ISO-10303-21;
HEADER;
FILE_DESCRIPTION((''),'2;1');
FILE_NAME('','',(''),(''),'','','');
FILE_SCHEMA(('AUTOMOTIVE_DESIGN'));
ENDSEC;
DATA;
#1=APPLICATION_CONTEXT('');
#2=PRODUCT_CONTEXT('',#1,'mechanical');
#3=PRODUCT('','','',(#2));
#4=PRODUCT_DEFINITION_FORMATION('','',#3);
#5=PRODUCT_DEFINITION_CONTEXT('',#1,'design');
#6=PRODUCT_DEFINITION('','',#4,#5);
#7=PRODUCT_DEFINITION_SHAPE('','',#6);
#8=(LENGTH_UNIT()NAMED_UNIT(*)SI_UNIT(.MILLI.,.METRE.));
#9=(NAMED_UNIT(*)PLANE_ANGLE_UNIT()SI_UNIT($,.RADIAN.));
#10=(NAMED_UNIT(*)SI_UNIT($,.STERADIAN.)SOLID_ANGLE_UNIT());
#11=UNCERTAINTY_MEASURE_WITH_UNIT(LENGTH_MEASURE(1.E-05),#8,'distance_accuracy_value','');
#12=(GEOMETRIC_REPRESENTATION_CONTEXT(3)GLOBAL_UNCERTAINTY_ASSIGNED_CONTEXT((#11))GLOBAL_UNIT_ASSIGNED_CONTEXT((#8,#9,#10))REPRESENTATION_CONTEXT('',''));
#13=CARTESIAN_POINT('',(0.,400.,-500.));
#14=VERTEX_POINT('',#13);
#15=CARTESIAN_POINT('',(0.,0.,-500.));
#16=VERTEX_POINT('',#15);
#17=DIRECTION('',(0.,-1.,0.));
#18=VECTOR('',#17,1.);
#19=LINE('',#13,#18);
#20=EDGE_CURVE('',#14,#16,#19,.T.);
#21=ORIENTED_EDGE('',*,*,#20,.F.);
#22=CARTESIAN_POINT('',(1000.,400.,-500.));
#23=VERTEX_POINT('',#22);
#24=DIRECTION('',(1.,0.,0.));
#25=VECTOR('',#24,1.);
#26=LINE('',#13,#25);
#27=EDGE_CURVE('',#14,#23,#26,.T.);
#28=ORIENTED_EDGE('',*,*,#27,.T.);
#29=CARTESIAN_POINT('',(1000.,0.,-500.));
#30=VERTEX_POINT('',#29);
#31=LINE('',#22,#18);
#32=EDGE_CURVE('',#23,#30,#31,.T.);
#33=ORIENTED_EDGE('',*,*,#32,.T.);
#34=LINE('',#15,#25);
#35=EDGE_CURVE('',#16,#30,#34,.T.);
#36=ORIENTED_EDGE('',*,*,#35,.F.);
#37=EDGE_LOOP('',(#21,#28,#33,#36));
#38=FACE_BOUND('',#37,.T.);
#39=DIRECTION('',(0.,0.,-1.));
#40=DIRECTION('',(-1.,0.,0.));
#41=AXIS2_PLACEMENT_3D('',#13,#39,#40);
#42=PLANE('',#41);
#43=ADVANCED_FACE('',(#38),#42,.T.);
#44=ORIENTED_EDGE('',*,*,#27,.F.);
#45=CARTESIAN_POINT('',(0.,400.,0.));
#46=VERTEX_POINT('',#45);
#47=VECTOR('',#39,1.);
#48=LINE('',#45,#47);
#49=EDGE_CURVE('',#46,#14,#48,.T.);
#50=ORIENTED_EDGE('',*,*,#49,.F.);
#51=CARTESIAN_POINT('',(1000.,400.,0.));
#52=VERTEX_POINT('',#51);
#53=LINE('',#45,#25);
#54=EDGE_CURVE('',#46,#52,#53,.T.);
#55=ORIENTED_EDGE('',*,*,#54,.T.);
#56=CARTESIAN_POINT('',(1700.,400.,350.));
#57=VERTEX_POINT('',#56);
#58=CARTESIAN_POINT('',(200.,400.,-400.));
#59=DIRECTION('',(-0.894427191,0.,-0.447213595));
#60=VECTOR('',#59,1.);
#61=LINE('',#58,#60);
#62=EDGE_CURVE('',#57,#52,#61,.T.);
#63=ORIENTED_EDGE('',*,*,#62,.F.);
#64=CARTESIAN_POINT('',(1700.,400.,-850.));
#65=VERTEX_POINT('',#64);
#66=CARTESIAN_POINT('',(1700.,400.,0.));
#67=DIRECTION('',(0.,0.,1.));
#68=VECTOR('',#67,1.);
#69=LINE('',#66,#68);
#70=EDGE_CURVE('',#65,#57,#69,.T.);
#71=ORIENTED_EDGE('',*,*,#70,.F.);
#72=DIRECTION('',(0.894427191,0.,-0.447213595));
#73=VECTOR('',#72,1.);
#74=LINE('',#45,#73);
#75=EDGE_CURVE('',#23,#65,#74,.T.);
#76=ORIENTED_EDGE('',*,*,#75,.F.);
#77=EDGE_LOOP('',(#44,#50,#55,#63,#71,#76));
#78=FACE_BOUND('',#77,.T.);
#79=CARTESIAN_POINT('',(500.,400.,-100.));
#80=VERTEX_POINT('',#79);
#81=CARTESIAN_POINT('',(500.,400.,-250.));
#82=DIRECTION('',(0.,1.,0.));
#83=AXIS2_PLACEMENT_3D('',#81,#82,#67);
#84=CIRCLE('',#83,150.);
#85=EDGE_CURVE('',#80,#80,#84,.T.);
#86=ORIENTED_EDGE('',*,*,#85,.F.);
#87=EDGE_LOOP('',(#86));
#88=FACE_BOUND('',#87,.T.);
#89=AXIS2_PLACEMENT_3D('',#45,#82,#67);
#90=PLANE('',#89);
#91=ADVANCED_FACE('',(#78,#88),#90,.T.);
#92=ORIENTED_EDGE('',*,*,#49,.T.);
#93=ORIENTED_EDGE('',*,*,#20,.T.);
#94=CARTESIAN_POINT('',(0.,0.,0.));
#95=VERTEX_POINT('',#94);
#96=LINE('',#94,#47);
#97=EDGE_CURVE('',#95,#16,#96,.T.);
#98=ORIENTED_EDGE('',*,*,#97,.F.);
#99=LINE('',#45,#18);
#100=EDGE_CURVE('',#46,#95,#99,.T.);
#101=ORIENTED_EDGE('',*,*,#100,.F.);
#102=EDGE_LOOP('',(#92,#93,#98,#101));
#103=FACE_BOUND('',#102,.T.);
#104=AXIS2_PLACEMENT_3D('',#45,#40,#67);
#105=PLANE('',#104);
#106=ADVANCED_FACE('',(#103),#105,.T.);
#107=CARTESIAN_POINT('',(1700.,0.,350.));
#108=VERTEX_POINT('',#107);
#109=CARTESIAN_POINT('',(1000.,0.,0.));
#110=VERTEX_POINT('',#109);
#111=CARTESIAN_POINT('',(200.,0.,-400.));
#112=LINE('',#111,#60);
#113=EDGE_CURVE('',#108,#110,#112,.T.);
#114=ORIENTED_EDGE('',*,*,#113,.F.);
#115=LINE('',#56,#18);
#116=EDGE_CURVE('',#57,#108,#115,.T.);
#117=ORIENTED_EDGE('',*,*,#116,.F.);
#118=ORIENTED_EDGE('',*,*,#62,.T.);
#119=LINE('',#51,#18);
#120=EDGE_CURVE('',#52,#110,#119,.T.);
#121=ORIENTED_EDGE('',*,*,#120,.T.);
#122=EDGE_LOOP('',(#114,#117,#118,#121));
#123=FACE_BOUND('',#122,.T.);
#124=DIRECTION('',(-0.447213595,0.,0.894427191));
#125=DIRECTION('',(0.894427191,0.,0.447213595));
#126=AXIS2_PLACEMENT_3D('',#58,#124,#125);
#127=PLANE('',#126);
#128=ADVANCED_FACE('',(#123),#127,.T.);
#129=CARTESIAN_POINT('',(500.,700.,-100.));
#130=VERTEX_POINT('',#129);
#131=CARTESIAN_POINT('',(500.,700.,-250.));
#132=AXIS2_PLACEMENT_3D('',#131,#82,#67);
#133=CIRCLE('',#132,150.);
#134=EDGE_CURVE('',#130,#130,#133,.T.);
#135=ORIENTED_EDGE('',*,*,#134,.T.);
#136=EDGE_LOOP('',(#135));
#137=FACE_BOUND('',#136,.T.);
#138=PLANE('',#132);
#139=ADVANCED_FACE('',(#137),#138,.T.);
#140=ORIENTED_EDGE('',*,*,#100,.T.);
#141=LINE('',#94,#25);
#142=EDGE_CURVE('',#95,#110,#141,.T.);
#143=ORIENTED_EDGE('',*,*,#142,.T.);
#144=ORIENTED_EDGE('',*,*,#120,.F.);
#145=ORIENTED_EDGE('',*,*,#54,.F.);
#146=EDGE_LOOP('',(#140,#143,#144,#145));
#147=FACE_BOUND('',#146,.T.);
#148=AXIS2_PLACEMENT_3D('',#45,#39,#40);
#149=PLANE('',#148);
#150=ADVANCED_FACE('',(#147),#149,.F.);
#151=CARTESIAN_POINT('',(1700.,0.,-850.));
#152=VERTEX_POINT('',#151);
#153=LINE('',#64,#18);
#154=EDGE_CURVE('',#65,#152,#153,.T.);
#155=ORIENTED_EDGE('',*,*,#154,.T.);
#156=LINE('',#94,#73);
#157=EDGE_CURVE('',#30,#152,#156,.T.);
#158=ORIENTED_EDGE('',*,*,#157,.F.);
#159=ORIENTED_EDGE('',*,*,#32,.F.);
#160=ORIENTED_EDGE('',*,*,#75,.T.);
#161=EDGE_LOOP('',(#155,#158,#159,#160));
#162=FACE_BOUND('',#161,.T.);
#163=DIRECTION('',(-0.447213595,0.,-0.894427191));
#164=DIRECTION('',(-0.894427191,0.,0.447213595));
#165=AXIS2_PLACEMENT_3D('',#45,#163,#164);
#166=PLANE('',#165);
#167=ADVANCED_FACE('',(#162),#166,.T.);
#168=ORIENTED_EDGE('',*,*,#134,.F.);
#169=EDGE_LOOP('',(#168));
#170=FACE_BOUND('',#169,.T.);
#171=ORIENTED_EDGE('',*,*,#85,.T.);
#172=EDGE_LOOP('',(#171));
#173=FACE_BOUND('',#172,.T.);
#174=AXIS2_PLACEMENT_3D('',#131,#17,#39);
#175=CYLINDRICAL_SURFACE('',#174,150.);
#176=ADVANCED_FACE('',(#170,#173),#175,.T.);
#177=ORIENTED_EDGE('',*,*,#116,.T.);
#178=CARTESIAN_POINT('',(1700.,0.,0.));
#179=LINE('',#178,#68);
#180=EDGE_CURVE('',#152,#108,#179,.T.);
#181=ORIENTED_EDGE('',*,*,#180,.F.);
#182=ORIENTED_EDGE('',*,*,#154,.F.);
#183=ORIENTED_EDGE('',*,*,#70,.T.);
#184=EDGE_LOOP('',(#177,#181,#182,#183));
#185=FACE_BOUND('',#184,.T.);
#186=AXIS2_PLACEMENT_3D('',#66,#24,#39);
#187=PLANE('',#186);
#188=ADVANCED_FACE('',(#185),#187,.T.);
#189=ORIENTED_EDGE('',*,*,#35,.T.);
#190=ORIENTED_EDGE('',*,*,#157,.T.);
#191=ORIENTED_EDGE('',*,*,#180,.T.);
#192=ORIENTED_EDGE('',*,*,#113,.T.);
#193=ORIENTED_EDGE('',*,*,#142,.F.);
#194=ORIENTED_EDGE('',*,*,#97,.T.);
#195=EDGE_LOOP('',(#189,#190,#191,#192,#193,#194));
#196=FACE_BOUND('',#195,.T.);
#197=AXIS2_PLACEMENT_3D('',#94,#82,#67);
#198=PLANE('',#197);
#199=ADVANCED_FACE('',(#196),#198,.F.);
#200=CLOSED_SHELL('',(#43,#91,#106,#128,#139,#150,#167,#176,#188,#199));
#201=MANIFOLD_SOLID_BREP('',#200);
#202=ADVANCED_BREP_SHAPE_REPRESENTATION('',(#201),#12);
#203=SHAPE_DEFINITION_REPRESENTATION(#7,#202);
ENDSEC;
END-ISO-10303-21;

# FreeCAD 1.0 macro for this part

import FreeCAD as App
import Part
import Sketcher
from FreeCAD import Vector


def add_polygon(sketch, points):
    """Adds a closed chain of lines whose ends are joined by coincident constraints."""
    first, n = sketch.GeometryCount, len(points)
    for a, b in zip(points, points[1:] + points[:1]):
        sketch.addGeometry(Part.LineSegment(App.Vector(*a, 0), App.Vector(*b, 0)), False)
    for i in range(n):
        sketch.addConstraint(Sketcher.Constraint("Coincident", first + i, 2, first + (i + 1) % n, 1))

doc = App.newDocument("Part")
body = doc.addObject("PartDesign::Body", "Body")

# Sketch on XZ plane
sketch1 = body.newObject("Sketcher::SketchObject", "Sketch")
sketch1.AttachmentSupport = (doc.getObject("XZ_Plane"), [""])
sketch1.MapMode = "FlatFace"
add_polygon(sketch1, [(1000, 0), (1700, 350), (1700, -850), (1000, -500), (0, -500), (0, 0)])  # lines 0-5
sketch1.addConstraint([
    Sketcher.Constraint("Vertical", 1),
    Sketcher.Constraint("Horizontal", 3),
    Sketcher.Constraint("Vertical", 4),
    Sketcher.Constraint("Horizontal", 5),
    Sketcher.Constraint("Coincident", 4, 2, -1, 1),
    Sketcher.Constraint("Vertical", 2, 2, 5, 2),
    Sketcher.Constraint("Equal", 0, 2),
    Sketcher.Constraint("DistanceX", 3, 2, 3, 1, 1000.0),
    Sketcher.Constraint("DistanceY", 1, 2, 1, 1, 1200.0),
    Sketcher.Constraint("DistanceY", 4, 1, 4, 2, 500.0),
    Sketcher.Constraint("DistanceX", -1, 1, 0, 2, 1700.0),
])
pad1 = body.newObject("PartDesign::Pad", "Pad")
pad1.Profile = sketch1
pad1.Length = 400
pad1.Reversed = True

# Sketch on XZ plane
sketch2 = body.newObject("Sketcher::SketchObject", "Sketch001")
sketch2.AttachmentSupport = (doc.getObject("XZ_Plane"), [""])
sketch2.MapMode = "FlatFace"
sketch2.AttachmentOffset = App.Placement(Vector(0, 0, -400), App.Rotation())
sketch2.addGeometry(Part.Circle(Vector(500, -250, 0), Vector(0, 0, 1), 150), False)
sketch2.addConstraint([
    Sketcher.Constraint("Diameter", 0, 300.0),
    Sketcher.Constraint("DistanceX", -1, 1, 0, 3, 500.0),
    Sketcher.Constraint("DistanceY", 0, 3, -1, 1, 250.0),
])
pad2 = body.newObject("PartDesign::Pad", "Pad001")
pad2.Profile = sketch2
pad2.Length = 300
pad2.Reversed = True

doc.recompute()
